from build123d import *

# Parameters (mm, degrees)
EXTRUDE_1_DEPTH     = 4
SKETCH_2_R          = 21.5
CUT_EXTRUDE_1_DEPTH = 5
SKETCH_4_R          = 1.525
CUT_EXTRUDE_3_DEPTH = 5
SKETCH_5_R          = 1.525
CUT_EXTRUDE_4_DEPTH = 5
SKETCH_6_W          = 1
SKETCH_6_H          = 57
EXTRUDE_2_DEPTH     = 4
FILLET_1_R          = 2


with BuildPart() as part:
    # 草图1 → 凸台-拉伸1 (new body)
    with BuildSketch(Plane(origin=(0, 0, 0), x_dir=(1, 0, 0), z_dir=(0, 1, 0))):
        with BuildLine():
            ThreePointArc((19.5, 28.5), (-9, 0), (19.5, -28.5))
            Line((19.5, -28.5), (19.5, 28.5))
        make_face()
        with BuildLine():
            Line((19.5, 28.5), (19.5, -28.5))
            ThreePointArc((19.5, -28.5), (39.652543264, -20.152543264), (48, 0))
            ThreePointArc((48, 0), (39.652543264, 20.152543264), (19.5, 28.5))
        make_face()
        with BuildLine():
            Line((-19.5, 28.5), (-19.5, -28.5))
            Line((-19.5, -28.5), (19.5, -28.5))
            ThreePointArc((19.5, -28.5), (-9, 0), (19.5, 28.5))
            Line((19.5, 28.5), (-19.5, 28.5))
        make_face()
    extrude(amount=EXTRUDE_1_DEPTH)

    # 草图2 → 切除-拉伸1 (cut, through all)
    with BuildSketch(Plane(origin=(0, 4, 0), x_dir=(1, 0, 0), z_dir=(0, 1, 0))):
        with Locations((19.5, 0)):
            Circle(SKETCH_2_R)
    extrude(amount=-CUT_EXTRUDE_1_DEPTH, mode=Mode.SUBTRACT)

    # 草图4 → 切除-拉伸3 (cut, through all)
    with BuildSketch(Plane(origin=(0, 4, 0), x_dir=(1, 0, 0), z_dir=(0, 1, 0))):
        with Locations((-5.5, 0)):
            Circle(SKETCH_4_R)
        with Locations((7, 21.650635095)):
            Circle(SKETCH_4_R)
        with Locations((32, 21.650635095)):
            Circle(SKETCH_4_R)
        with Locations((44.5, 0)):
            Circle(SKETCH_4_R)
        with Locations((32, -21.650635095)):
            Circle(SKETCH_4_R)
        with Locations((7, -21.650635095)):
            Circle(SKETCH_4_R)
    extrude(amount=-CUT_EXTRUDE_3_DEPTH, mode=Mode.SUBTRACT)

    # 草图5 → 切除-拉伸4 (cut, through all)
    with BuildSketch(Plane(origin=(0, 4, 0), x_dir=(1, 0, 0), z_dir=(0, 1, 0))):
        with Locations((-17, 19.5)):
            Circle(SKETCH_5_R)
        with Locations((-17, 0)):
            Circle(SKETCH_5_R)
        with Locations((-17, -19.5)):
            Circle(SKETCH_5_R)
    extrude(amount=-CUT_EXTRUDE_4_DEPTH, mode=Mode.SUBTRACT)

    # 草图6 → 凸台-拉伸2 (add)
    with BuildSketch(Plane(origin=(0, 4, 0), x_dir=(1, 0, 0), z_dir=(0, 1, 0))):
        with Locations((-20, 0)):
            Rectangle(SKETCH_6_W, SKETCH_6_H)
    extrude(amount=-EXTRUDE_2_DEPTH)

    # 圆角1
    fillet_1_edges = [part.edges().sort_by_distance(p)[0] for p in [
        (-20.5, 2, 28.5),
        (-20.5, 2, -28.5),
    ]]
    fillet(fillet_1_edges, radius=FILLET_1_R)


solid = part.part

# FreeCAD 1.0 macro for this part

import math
import FreeCAD as App
import Part
import Sketcher

V = App.Vector


def edges_at(feature, points):
    """Names of the edges that pass closest to the given points."""
    edges = feature.Shape.Edges
    near = lambda p: min(range(len(edges)), key=lambda i: edges[i].distToShape(Part.Vertex(*p))[0])
    return sorted({f"Edge{near(p) + 1}" for p in points})

doc = App.newDocument("Part")
params = doc.addObject("Spreadsheet::Sheet", "Params")
for row, (alias, value) in enumerate([
    ("sketch1_radius", "28.5 mm"),
    ("sketch1_width", "39 mm"),
    ("pad1_length", "4 mm"),
    ("sketch2_diameter", "43 mm"),
    ("sketch3_diameter", "3.05 mm"),
    ("sketch4_diameter", "3.05 mm"),
    ("sketch5_width", "1 mm"),
    ("sketch5_height", "57 mm"),
    ("pad2_length", "4 mm"),
    ("fillet_radius", "2 mm"),
], start=1):
    params.set(f"A{row}", alias)
    params.set(f"B{row}", "=" + value)
    params.setAlias(f"B{row}", alias)

body = doc.addObject("PartDesign::Body", "Body")

sketch1 = doc.addObject("Sketcher::SketchObject", "Sketch")
body.addObject(sketch1)
sketch1.AttachmentSupport = (doc.XZ_Plane, [""])
sketch1.MapMode = "FlatFace"
sketch1.addGeometry([
    Part.ArcOfCircle(Part.Circle(V(20, 0, 0), V(0, 0, 1), 28), math.radians(0), math.radians(90)),
    Part.ArcOfCircle(Part.Circle(V(20, 0, 0), V(0, 0, 1), 28), math.radians(-90), math.radians(0)),
    Part.LineSegment(V(20, -28, 0), V(-20, -28, 0)),
    Part.LineSegment(V(-20, -28, 0), V(-20, 28, 0)),
    Part.LineSegment(V(-20, 28, 0), V(20, 28, 0)),
], False)
sketch1.addConstraint([
    Sketcher.Constraint("Tangent", 0, 1, 1, 2),
    Sketcher.Constraint("Tangent", 1, 1, 2, 1),
    Sketcher.Constraint("Coincident", 2, 2, 3, 1),
    Sketcher.Constraint("Coincident", 3, 2, 4, 1),
    Sketcher.Constraint("Tangent", 4, 2, 0, 2),
    Sketcher.Constraint("Horizontal", 2),
    Sketcher.Constraint("Vertical", 3),
    Sketcher.Constraint("Horizontal", 4),
    Sketcher.Constraint("Equal", 0, 1),
    Sketcher.Constraint("Symmetric", 1, 1, 3, 2, -1, 1),
    Sketcher.Constraint("PointOnObject", 0, 1, -1),
    Sketcher.Constraint("Radius", 0, 28.5),
    Sketcher.Constraint("DistanceX", 2, 2, 2, 1, 39.0),
])
sketch1.setExpression("Constraints[11]", "Params.sketch1_radius")
sketch1.setExpression("Constraints[12]", "Params.sketch1_width")
pad1 = doc.addObject("PartDesign::Pad", "Pad")
body.addObject(pad1)
pad1.Profile = sketch1
pad1.setExpression("Length", "Params.pad1_length")
pad1.Reversed = True

sketch2 = doc.addObject("Sketcher::SketchObject", "Sketch001")
body.addObject(sketch2)
sketch2.AttachmentSupport = (doc.XZ_Plane, [""])
sketch2.MapMode = "FlatFace"
sketch2.AttachmentOffset = App.Placement(V(0, 0, -4), App.Rotation())
sketch2.addGeometry(Part.Circle(V(20, 0, 0), V(0, 0, 1), 22), False)
sketch2.addConstraint([
    Sketcher.Constraint("PointOnObject", 0, 3, -1),
    Sketcher.Constraint("Diameter", 0, 43.0),
    Sketcher.Constraint("DistanceX", -1, 1, 0, 3, 19.5),
])
sketch2.setExpression("Constraints[1]", "Params.sketch2_diameter")
pocket1 = doc.addObject("PartDesign::Pocket", "Pocket")
body.addObject(pocket1)
pocket1.Profile = sketch2
pocket1.Type = "ThroughAll"
pocket1.Reversed = True

sketch3 = doc.addObject("Sketcher::SketchObject", "Sketch002")
body.addObject(sketch3)
sketch3.AttachmentSupport = (doc.XZ_Plane, [""])
sketch3.MapMode = "FlatFace"
sketch3.AttachmentOffset = App.Placement(V(0, 0, -4), App.Rotation())
sketch3.addGeometry([
    Part.Circle(V(-5.5, 0, 0), V(0, 0, 1), 1.5),
    Part.Circle(V(7, -21.7, 0), V(0, 0, 1), 1.5),
    Part.Circle(V(32, -21.7, 0), V(0, 0, 1), 1.5),
    Part.Circle(V(44.5, 0, 0), V(0, 0, 1), 1.5),
    Part.Circle(V(32, 21.7, 0), V(0, 0, 1), 1.5),
    Part.Circle(V(7, 21.7, 0), V(0, 0, 1), 1.5),
], False)
sketch3.addConstraint([
    Sketcher.Constraint("Equal", 0, 1),
    Sketcher.Constraint("Equal", 1, 2),
    Sketcher.Constraint("Equal", 2, 3),
    Sketcher.Constraint("Equal", 3, 4),
    Sketcher.Constraint("Equal", 4, 5),
    Sketcher.Constraint("Symmetric", 2, 3, 4, 3, -1),
    Sketcher.Constraint("Symmetric", 1, 3, 5, 3, -1),
    Sketcher.Constraint("PointOnObject", 0, 3, -1),
    Sketcher.Constraint("PointOnObject", 3, 3, -1),
    Sketcher.Constraint("Horizontal", 1, 3, 2, 3),
    Sketcher.Constraint("Diameter", 0, 3.05),
    Sketcher.Constraint("DistanceX", -1, 1, 1, 3, 7.0),
    Sketcher.Constraint("DistanceX", -1, 1, 2, 3, 32.0),
    Sketcher.Constraint("DistanceX", 0, 3, 3, 3, 50.0),
    Sketcher.Constraint("DistanceX", 0, 3, -1, 1, 5.5),
    Sketcher.Constraint("DistanceY", 2, 3, 4, 3, 43.30127),
])
sketch3.setExpression("Constraints[10]", "Params.sketch3_diameter")
pocket2 = doc.addObject("PartDesign::Pocket", "Pocket001")
body.addObject(pocket2)
pocket2.Profile = sketch3
pocket2.Type = "ThroughAll"
pocket2.Reversed = True

sketch4 = doc.addObject("Sketcher::SketchObject", "Sketch003")
body.addObject(sketch4)
sketch4.AttachmentSupport = (doc.XZ_Plane, [""])
sketch4.MapMode = "FlatFace"
sketch4.AttachmentOffset = App.Placement(V(0, 0, -4), App.Rotation())
sketch4.addGeometry([
    Part.Circle(V(-17, -19.5, 0), V(0, 0, 1), 1.5),
    Part.Circle(V(-17, 0, 0), V(0, 0, 1), 1.5),
    Part.Circle(V(-17, 19.5, 0), V(0, 0, 1), 1.5),
], False)
sketch4.addConstraint([
    Sketcher.Constraint("Equal", 0, 1),
    Sketcher.Constraint("Equal", 1, 2),
    Sketcher.Constraint("Symmetric", 0, 3, 2, 3, -1),
    Sketcher.Constraint("PointOnObject", 1, 3, -1),
    Sketcher.Constraint("Vertical", 0, 3, 1, 3),
    Sketcher.Constraint("Diameter", 0, 3.05),
    Sketcher.Constraint("DistanceX", 0, 3, -1, 1, 17.0),
    Sketcher.Constraint("DistanceY", 0, 3, 2, 3, 39.0),
])
sketch4.setExpression("Constraints[5]", "Params.sketch4_diameter")
pocket3 = doc.addObject("PartDesign::Pocket", "Pocket002")
body.addObject(pocket3)
pocket3.Profile = sketch4
pocket3.Type = "ThroughAll"
pocket3.Reversed = True

sketch5 = doc.addObject("Sketcher::SketchObject", "Sketch004")
body.addObject(sketch5)
sketch5.AttachmentSupport = (doc.XZ_Plane, [""])
sketch5.MapMode = "FlatFace"
sketch5.AttachmentOffset = App.Placement(V(0, 0, -4), App.Rotation())
sketch5.addGeometry([
    Part.LineSegment(V(-20.5, -28.5, 0), V(-20.5, 28.5, 0)),
    Part.LineSegment(V(-20.5, 28.5, 0), V(-19.5, 28.5, 0)),
    Part.LineSegment(V(-19.5, 28.5, 0), V(-19.5, -28.5, 0)),
    Part.LineSegment(V(-19.5, -28.5, 0), V(-20.5, -28.5, 0)),
], False)
sketch5.addConstraint([
    Sketcher.Constraint("Coincident", 0, 2, 1, 1),
    Sketcher.Constraint("Coincident", 1, 2, 2, 1),
    Sketcher.Constraint("Coincident", 2, 2, 3, 1),
    Sketcher.Constraint("Coincident", 3, 2, 0, 1),
    Sketcher.Constraint("Vertical", 0),
    Sketcher.Constraint("Horizontal", 1),
    Sketcher.Constraint("Vertical", 2),
    Sketcher.Constraint("Horizontal", 3),
    Sketcher.Constraint("DistanceX", 1, 1, 1, 2, 1.0),
    Sketcher.Constraint("DistanceY", 0, 1, 0, 2, 57.0),
    Sketcher.Constraint("DistanceX", 0, 2, -1, 1, 20.5),
    Sketcher.Constraint("DistanceY", -1, 1, 0, 2, 28.5),
])
sketch5.setExpression("Constraints[8]", "Params.sketch5_width")
sketch5.setExpression("Constraints[9]", "Params.sketch5_height")
pad2 = doc.addObject("PartDesign::Pad", "Pad001")
body.addObject(pad2)
pad2.Profile = sketch5
pad2.setExpression("Length", "Params.pad2_length")
doc.recompute()

fillet = doc.addObject("PartDesign::Fillet", "Fillet")
body.addObject(fillet)
fillet.Base = (pad2, edges_at(pad2, [(-20.5, 2, 28.5), (-20.5, 2, -28.5)]))
fillet.setExpression("Radius", "Params.fillet_radius")

doc.recompute()
